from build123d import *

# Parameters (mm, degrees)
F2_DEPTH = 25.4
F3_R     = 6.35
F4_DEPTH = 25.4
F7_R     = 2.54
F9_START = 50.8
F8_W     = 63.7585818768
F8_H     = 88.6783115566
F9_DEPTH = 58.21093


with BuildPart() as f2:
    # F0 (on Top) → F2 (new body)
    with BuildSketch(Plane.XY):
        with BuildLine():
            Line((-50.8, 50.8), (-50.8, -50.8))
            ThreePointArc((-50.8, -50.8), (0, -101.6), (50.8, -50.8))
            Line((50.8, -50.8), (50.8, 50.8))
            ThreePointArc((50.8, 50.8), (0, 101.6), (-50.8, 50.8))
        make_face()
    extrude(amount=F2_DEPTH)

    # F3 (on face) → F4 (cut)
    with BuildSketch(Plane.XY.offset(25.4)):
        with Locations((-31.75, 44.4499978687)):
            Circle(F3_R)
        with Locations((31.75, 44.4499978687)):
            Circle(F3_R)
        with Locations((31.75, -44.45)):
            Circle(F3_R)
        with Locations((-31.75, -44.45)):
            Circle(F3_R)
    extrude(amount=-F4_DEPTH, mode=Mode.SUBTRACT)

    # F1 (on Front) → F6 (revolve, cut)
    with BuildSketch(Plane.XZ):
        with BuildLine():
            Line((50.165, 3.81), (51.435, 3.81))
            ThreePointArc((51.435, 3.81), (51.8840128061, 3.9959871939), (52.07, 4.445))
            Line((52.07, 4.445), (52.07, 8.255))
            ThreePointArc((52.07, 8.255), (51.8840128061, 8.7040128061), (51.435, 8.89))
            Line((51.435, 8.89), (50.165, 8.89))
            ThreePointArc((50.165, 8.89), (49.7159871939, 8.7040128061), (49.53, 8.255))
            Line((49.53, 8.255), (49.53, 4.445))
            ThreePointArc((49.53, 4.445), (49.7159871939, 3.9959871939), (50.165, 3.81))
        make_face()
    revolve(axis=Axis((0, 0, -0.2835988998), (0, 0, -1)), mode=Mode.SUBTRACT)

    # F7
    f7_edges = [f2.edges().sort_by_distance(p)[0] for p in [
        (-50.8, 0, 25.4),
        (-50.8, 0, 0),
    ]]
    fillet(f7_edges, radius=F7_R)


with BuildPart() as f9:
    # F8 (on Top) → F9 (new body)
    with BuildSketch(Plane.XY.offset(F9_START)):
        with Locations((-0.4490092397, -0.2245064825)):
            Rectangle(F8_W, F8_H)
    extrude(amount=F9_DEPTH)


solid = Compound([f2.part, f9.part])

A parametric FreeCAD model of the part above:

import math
import FreeCAD as App
import Part
import Sketcher
Q = App.Units.Quantity


def edges_at(feature, points):
    """Names of the edges that pass closest to the given points."""
    edges = feature.Shape.Edges
    near = lambda p: min(range(len(edges)), key=lambda i: edges[i].distToShape(Part.Vertex(*p))[0])
    return sorted({f"Edge{near(p) + 1}" for p in points})


def add_polygon(sketch, points):
    """Adds a closed chain of lines whose ends are joined by coincident constraints."""
    first, n = sketch.GeometryCount, len(points)
    for a, b in zip(points, points[1:] + points[:1]):
        sketch.addGeometry(Part.LineSegment(App.Vector(*a, 0), App.Vector(*b, 0)), False)
    for i in range(n):
        sketch.addConstraint(Sketcher.Constraint("Coincident", first + i, 2, first + (i + 1) % n, 1))

doc = App.newDocument("Part")
params = doc.addObject("Spreadsheet::Sheet", "Params")
for row, (alias, value) in enumerate([
    ("sketch1_radius", "2 in"),
    ("sketch1_height", "4 in"),
    ("pad1_length", "1 in"),
    ("sketch2_diameter", "0.5 in"),
    ("pocket1_length", "1 in"),
    ("sketch3_radius", "0.025 in"),
    ("sketch3_width", "0.05 in"),
    ("sketch3_height", "0.15 in"),
    ("groove_angle", "360 deg"),
    ("fillet_radius", "0.1 in"),
    ("pad2_length", "58.21093 mm"),
], start=1):
    params.set(f"A{row}", alias)
    params.set(f"B{row}", "=" + value)
    params.setAlias(f"B{row}", alias)

body = doc.addObject("PartDesign::Body", "Body")

sketch1 = body.newObject("Sketcher::SketchObject", "Sketch")
sketch1.AttachmentSupport = (doc.getObject("XY_Plane"), [""])
sketch1.MapMode = "FlatFace"
sketch1.addGeometry([
    Part.LineSegment(App.Vector(-50.8, 50.8, 0), App.Vector(-50.8, -50.8, 0)),
    Part.ArcOfCircle(Part.Circle(App.Vector(0, -50.8, 0), App.Vector(0, 0, 1), 50.8), math.radians(180), math.radians(360)),
    Part.LineSegment(App.Vector(50.8, -50.8, 0), App.Vector(50.8, 50.8, 0)),
    Part.ArcOfCircle(Part.Circle(App.Vector(0, 50.8, 0), App.Vector(0, 0, 1), 50.8), math.radians(0), math.radians(180)),
], False)
sketch1.addConstraint([
    Sketcher.Constraint("Tangent", 0, 2, 1, 1),
    Sketcher.Constraint("Tangent", 1, 2, 2, 1),
    Sketcher.Constraint("Tangent", 2, 2, 3, 1),
    Sketcher.Constraint("Tangent", 3, 2, 0, 1),
    Sketcher.Constraint("Vertical", 0),
    Sketcher.Constraint("Vertical", 2),
    Sketcher.Constraint("Symmetric", 1, 3, 3, 3, -1, 1),
    Sketcher.Constraint("Radius", 1, Q("2 in")),
    Sketcher.Constraint("DistanceY", 0, 2, 0, 1, Q("4 in")),
])
sketch1.setExpression("Constraints[7]", "Params.sketch1_radius")
sketch1.setExpression("Constraints[8]", "Params.sketch1_height")
pad1 = body.newObject("PartDesign::Pad", "Pad")
pad1.Profile = sketch1
pad1.setExpression("Length", "Params.pad1_length")

sketch2 = body.newObject("Sketcher::SketchObject", "Sketch001")
sketch2.AttachmentSupport = (doc.getObject("XY_Plane"), [""])
sketch2.MapMode = "FlatFace"
sketch2.AttachmentOffset = App.Placement(App.Vector(0, 0, 1 * 25.4), App.Rotation())
sketch2.addGeometry([
    Part.Circle(App.Vector(-31.75, 44.449998, 0), App.Vector(0, 0, 1), 6.35),
    Part.Circle(App.Vector(31.75, 44.449998, 0), App.Vector(0, 0, 1), 6.35),
    Part.Circle(App.Vector(31.75, -44.45, 0), App.Vector(0, 0, 1), 6.35),
    Part.Circle(App.Vector(-31.75, -44.45, 0), App.Vector(0, 0, 1), 6.35),
], False)
sketch2.addConstraint([
    Sketcher.Constraint("Equal", 0, 1),
    Sketcher.Constraint("Equal", 1, 2),
    Sketcher.Constraint("Equal", 2, 3),
    Sketcher.Constraint("Symmetric", 0, 3, 2, 3, -1, 1),
    Sketcher.Constraint("Symmetric", 1, 3, 3, 3, -1, 1),
    Sketcher.Constraint("Symmetric", 0, 3, 1, 3, -2),
    Sketcher.Constraint("Diameter", 0, Q("0.5 in")),
    Sketcher.Constraint("DistanceX", 0, 3, 1, 3, Q("2.5 in")),
    Sketcher.Constraint("DistanceY", 2, 3, 1, 3, Q("3.4999999 in")),
])
sketch2.setExpression("Constraints[6]", "Params.sketch2_diameter")
pocket1 = body.newObject("PartDesign::Pocket", "Pocket")
pocket1.Profile = sketch2
pocket1.setExpression("Length", "Params.pocket1_length")

sketch3 = body.newObject("Sketcher::SketchObject", "Sketch002")
sketch3.AttachmentSupport = (doc.getObject("XZ_Plane"), [""])
sketch3.MapMode = "FlatFace"
sketch3.addGeometry([
    Part.LineSegment(App.Vector(50.165, 3.81, 0), App.Vector(51.435, 3.81, 0)),
    Part.ArcOfCircle(Part.Circle(App.Vector(51.435, 4.445, 0), App.Vector(0, 0, 1), 0.635), math.radians(-90), math.radians(0)),
    Part.LineSegment(App.Vector(52.07, 4.445, 0), App.Vector(52.07, 8.255, 0)),
    Part.ArcOfCircle(Part.Circle(App.Vector(51.435, 8.255, 0), App.Vector(0, 0, 1), 0.635), math.radians(0), math.radians(90)),
    Part.LineSegment(App.Vector(51.435, 8.89, 0), App.Vector(50.165, 8.89, 0)),
    Part.ArcOfCircle(Part.Circle(App.Vector(50.165, 8.255, 0), App.Vector(0, 0, 1), 0.635), math.radians(90), math.radians(180)),
    Part.LineSegment(App.Vector(49.53, 8.255, 0), App.Vector(49.53, 4.445, 0)),
    Part.ArcOfCircle(Part.Circle(App.Vector(50.165, 4.445, 0), App.Vector(0, 0, 1), 0.635), math.radians(180), math.radians(270)),
], False)
sketch3.addConstraint([
    Sketcher.Constraint("Tangent", 0, 2, 1, 1),
    Sketcher.Constraint("Tangent", 1, 2, 2, 1),
    Sketcher.Constraint("Tangent", 2, 2, 3, 1),
    Sketcher.Constraint("Tangent", 3, 2, 4, 1),
    Sketcher.Constraint("Tangent", 4, 2, 5, 1),
    Sketcher.Constraint("Tangent", 5, 2, 6, 1),
    Sketcher.Constraint("Tangent", 6, 2, 7, 1),
    Sketcher.Constraint("Tangent", 7, 2, 0, 1),
    Sketcher.Constraint("Horizontal", 0),
    Sketcher.Constraint("Vertical", 2),
    Sketcher.Constraint("Horizontal", 4),
    Sketcher.Constraint("Vertical", 6),
    Sketcher.Constraint("Equal", 1, 3),
    Sketcher.Constraint("Equal", 3, 5),
    Sketcher.Constraint("Equal", 5, 7),
    Sketcher.Constraint("Radius", 1, Q("0.025 in")),
    Sketcher.Constraint("DistanceX", 0, 1, 0, 2, Q("0.05 in")),
    Sketcher.Constraint("DistanceY", 2, 1, 2, 2, Q("0.15 in")),
    Sketcher.Constraint("DistanceY", -1, 1, 0, 2, Q("0.15 in")),
    Sketcher.Constraint("DistanceX", -1, 1, 1, 2, Q("2.05 in")),
])
sketch3.setExpression("Constraints[15]", "Params.sketch3_radius")
sketch3.setExpression("Constraints[16]", "Params.sketch3_width")
sketch3.setExpression("Constraints[17]", "Params.sketch3_height")
groove = body.newObject("PartDesign::Groove", "Groove")
groove.Profile = sketch3
groove.ReferenceAxis = (sketch3, ["V_Axis"])
groove.setExpression("Angle", "Params.groove_angle")
doc.recompute()

fillet = body.newObject("PartDesign::Fillet", "Fillet")
fillet.Base = (groove, edges_at(groove, [(-50.8, 0, 25.4), (-50.8, 0, 0)]))
fillet.setExpression("Radius", "Params.fillet_radius")
body2 = doc.addObject("PartDesign::Body", "Body001")

sketch4 = body2.newObject("Sketcher::SketchObject", "Sketch003")
sketch4.AttachmentSupport = (doc.getObject("XY_Plane001"), [""])
sketch4.MapMode = "FlatFace"
sketch4.AttachmentOffset = App.Placement(App.Vector(0, 0, 2 * 25.4), App.Rotation())
add_polygon(sketch4, [(-32.3283, 44.114649), (-32.3283, -44.563662), (31.430282, -44.563662), (31.430282, 44.114649)])
sketch4.addConstraint([
    Sketcher.Constraint("Vertical", 0),
    Sketcher.Constraint("Horizontal", 1),
    Sketcher.Constraint("Vertical", 2),
    Sketcher.Constraint("Horizontal", 3),
    Sketcher.Constraint("DistanceX", 1, 1, 1, 2, Q("63.758582 mm")),
    Sketcher.Constraint("DistanceY", 0, 2, 0, 1, Q("88.678312 mm")),
    Sketcher.Constraint("DistanceX", 0, 2, -1, 1, Q("32.3283 mm")),
    Sketcher.Constraint("DistanceY", -1, 1, 2, 2, Q("44.114649 mm")),
])
pad2 = body2.newObject("PartDesign::Pad", "Pad001")
pad2.Profile = sketch4
pad2.setExpression("Length", "Params.pad2_length")

doc.recompute()
